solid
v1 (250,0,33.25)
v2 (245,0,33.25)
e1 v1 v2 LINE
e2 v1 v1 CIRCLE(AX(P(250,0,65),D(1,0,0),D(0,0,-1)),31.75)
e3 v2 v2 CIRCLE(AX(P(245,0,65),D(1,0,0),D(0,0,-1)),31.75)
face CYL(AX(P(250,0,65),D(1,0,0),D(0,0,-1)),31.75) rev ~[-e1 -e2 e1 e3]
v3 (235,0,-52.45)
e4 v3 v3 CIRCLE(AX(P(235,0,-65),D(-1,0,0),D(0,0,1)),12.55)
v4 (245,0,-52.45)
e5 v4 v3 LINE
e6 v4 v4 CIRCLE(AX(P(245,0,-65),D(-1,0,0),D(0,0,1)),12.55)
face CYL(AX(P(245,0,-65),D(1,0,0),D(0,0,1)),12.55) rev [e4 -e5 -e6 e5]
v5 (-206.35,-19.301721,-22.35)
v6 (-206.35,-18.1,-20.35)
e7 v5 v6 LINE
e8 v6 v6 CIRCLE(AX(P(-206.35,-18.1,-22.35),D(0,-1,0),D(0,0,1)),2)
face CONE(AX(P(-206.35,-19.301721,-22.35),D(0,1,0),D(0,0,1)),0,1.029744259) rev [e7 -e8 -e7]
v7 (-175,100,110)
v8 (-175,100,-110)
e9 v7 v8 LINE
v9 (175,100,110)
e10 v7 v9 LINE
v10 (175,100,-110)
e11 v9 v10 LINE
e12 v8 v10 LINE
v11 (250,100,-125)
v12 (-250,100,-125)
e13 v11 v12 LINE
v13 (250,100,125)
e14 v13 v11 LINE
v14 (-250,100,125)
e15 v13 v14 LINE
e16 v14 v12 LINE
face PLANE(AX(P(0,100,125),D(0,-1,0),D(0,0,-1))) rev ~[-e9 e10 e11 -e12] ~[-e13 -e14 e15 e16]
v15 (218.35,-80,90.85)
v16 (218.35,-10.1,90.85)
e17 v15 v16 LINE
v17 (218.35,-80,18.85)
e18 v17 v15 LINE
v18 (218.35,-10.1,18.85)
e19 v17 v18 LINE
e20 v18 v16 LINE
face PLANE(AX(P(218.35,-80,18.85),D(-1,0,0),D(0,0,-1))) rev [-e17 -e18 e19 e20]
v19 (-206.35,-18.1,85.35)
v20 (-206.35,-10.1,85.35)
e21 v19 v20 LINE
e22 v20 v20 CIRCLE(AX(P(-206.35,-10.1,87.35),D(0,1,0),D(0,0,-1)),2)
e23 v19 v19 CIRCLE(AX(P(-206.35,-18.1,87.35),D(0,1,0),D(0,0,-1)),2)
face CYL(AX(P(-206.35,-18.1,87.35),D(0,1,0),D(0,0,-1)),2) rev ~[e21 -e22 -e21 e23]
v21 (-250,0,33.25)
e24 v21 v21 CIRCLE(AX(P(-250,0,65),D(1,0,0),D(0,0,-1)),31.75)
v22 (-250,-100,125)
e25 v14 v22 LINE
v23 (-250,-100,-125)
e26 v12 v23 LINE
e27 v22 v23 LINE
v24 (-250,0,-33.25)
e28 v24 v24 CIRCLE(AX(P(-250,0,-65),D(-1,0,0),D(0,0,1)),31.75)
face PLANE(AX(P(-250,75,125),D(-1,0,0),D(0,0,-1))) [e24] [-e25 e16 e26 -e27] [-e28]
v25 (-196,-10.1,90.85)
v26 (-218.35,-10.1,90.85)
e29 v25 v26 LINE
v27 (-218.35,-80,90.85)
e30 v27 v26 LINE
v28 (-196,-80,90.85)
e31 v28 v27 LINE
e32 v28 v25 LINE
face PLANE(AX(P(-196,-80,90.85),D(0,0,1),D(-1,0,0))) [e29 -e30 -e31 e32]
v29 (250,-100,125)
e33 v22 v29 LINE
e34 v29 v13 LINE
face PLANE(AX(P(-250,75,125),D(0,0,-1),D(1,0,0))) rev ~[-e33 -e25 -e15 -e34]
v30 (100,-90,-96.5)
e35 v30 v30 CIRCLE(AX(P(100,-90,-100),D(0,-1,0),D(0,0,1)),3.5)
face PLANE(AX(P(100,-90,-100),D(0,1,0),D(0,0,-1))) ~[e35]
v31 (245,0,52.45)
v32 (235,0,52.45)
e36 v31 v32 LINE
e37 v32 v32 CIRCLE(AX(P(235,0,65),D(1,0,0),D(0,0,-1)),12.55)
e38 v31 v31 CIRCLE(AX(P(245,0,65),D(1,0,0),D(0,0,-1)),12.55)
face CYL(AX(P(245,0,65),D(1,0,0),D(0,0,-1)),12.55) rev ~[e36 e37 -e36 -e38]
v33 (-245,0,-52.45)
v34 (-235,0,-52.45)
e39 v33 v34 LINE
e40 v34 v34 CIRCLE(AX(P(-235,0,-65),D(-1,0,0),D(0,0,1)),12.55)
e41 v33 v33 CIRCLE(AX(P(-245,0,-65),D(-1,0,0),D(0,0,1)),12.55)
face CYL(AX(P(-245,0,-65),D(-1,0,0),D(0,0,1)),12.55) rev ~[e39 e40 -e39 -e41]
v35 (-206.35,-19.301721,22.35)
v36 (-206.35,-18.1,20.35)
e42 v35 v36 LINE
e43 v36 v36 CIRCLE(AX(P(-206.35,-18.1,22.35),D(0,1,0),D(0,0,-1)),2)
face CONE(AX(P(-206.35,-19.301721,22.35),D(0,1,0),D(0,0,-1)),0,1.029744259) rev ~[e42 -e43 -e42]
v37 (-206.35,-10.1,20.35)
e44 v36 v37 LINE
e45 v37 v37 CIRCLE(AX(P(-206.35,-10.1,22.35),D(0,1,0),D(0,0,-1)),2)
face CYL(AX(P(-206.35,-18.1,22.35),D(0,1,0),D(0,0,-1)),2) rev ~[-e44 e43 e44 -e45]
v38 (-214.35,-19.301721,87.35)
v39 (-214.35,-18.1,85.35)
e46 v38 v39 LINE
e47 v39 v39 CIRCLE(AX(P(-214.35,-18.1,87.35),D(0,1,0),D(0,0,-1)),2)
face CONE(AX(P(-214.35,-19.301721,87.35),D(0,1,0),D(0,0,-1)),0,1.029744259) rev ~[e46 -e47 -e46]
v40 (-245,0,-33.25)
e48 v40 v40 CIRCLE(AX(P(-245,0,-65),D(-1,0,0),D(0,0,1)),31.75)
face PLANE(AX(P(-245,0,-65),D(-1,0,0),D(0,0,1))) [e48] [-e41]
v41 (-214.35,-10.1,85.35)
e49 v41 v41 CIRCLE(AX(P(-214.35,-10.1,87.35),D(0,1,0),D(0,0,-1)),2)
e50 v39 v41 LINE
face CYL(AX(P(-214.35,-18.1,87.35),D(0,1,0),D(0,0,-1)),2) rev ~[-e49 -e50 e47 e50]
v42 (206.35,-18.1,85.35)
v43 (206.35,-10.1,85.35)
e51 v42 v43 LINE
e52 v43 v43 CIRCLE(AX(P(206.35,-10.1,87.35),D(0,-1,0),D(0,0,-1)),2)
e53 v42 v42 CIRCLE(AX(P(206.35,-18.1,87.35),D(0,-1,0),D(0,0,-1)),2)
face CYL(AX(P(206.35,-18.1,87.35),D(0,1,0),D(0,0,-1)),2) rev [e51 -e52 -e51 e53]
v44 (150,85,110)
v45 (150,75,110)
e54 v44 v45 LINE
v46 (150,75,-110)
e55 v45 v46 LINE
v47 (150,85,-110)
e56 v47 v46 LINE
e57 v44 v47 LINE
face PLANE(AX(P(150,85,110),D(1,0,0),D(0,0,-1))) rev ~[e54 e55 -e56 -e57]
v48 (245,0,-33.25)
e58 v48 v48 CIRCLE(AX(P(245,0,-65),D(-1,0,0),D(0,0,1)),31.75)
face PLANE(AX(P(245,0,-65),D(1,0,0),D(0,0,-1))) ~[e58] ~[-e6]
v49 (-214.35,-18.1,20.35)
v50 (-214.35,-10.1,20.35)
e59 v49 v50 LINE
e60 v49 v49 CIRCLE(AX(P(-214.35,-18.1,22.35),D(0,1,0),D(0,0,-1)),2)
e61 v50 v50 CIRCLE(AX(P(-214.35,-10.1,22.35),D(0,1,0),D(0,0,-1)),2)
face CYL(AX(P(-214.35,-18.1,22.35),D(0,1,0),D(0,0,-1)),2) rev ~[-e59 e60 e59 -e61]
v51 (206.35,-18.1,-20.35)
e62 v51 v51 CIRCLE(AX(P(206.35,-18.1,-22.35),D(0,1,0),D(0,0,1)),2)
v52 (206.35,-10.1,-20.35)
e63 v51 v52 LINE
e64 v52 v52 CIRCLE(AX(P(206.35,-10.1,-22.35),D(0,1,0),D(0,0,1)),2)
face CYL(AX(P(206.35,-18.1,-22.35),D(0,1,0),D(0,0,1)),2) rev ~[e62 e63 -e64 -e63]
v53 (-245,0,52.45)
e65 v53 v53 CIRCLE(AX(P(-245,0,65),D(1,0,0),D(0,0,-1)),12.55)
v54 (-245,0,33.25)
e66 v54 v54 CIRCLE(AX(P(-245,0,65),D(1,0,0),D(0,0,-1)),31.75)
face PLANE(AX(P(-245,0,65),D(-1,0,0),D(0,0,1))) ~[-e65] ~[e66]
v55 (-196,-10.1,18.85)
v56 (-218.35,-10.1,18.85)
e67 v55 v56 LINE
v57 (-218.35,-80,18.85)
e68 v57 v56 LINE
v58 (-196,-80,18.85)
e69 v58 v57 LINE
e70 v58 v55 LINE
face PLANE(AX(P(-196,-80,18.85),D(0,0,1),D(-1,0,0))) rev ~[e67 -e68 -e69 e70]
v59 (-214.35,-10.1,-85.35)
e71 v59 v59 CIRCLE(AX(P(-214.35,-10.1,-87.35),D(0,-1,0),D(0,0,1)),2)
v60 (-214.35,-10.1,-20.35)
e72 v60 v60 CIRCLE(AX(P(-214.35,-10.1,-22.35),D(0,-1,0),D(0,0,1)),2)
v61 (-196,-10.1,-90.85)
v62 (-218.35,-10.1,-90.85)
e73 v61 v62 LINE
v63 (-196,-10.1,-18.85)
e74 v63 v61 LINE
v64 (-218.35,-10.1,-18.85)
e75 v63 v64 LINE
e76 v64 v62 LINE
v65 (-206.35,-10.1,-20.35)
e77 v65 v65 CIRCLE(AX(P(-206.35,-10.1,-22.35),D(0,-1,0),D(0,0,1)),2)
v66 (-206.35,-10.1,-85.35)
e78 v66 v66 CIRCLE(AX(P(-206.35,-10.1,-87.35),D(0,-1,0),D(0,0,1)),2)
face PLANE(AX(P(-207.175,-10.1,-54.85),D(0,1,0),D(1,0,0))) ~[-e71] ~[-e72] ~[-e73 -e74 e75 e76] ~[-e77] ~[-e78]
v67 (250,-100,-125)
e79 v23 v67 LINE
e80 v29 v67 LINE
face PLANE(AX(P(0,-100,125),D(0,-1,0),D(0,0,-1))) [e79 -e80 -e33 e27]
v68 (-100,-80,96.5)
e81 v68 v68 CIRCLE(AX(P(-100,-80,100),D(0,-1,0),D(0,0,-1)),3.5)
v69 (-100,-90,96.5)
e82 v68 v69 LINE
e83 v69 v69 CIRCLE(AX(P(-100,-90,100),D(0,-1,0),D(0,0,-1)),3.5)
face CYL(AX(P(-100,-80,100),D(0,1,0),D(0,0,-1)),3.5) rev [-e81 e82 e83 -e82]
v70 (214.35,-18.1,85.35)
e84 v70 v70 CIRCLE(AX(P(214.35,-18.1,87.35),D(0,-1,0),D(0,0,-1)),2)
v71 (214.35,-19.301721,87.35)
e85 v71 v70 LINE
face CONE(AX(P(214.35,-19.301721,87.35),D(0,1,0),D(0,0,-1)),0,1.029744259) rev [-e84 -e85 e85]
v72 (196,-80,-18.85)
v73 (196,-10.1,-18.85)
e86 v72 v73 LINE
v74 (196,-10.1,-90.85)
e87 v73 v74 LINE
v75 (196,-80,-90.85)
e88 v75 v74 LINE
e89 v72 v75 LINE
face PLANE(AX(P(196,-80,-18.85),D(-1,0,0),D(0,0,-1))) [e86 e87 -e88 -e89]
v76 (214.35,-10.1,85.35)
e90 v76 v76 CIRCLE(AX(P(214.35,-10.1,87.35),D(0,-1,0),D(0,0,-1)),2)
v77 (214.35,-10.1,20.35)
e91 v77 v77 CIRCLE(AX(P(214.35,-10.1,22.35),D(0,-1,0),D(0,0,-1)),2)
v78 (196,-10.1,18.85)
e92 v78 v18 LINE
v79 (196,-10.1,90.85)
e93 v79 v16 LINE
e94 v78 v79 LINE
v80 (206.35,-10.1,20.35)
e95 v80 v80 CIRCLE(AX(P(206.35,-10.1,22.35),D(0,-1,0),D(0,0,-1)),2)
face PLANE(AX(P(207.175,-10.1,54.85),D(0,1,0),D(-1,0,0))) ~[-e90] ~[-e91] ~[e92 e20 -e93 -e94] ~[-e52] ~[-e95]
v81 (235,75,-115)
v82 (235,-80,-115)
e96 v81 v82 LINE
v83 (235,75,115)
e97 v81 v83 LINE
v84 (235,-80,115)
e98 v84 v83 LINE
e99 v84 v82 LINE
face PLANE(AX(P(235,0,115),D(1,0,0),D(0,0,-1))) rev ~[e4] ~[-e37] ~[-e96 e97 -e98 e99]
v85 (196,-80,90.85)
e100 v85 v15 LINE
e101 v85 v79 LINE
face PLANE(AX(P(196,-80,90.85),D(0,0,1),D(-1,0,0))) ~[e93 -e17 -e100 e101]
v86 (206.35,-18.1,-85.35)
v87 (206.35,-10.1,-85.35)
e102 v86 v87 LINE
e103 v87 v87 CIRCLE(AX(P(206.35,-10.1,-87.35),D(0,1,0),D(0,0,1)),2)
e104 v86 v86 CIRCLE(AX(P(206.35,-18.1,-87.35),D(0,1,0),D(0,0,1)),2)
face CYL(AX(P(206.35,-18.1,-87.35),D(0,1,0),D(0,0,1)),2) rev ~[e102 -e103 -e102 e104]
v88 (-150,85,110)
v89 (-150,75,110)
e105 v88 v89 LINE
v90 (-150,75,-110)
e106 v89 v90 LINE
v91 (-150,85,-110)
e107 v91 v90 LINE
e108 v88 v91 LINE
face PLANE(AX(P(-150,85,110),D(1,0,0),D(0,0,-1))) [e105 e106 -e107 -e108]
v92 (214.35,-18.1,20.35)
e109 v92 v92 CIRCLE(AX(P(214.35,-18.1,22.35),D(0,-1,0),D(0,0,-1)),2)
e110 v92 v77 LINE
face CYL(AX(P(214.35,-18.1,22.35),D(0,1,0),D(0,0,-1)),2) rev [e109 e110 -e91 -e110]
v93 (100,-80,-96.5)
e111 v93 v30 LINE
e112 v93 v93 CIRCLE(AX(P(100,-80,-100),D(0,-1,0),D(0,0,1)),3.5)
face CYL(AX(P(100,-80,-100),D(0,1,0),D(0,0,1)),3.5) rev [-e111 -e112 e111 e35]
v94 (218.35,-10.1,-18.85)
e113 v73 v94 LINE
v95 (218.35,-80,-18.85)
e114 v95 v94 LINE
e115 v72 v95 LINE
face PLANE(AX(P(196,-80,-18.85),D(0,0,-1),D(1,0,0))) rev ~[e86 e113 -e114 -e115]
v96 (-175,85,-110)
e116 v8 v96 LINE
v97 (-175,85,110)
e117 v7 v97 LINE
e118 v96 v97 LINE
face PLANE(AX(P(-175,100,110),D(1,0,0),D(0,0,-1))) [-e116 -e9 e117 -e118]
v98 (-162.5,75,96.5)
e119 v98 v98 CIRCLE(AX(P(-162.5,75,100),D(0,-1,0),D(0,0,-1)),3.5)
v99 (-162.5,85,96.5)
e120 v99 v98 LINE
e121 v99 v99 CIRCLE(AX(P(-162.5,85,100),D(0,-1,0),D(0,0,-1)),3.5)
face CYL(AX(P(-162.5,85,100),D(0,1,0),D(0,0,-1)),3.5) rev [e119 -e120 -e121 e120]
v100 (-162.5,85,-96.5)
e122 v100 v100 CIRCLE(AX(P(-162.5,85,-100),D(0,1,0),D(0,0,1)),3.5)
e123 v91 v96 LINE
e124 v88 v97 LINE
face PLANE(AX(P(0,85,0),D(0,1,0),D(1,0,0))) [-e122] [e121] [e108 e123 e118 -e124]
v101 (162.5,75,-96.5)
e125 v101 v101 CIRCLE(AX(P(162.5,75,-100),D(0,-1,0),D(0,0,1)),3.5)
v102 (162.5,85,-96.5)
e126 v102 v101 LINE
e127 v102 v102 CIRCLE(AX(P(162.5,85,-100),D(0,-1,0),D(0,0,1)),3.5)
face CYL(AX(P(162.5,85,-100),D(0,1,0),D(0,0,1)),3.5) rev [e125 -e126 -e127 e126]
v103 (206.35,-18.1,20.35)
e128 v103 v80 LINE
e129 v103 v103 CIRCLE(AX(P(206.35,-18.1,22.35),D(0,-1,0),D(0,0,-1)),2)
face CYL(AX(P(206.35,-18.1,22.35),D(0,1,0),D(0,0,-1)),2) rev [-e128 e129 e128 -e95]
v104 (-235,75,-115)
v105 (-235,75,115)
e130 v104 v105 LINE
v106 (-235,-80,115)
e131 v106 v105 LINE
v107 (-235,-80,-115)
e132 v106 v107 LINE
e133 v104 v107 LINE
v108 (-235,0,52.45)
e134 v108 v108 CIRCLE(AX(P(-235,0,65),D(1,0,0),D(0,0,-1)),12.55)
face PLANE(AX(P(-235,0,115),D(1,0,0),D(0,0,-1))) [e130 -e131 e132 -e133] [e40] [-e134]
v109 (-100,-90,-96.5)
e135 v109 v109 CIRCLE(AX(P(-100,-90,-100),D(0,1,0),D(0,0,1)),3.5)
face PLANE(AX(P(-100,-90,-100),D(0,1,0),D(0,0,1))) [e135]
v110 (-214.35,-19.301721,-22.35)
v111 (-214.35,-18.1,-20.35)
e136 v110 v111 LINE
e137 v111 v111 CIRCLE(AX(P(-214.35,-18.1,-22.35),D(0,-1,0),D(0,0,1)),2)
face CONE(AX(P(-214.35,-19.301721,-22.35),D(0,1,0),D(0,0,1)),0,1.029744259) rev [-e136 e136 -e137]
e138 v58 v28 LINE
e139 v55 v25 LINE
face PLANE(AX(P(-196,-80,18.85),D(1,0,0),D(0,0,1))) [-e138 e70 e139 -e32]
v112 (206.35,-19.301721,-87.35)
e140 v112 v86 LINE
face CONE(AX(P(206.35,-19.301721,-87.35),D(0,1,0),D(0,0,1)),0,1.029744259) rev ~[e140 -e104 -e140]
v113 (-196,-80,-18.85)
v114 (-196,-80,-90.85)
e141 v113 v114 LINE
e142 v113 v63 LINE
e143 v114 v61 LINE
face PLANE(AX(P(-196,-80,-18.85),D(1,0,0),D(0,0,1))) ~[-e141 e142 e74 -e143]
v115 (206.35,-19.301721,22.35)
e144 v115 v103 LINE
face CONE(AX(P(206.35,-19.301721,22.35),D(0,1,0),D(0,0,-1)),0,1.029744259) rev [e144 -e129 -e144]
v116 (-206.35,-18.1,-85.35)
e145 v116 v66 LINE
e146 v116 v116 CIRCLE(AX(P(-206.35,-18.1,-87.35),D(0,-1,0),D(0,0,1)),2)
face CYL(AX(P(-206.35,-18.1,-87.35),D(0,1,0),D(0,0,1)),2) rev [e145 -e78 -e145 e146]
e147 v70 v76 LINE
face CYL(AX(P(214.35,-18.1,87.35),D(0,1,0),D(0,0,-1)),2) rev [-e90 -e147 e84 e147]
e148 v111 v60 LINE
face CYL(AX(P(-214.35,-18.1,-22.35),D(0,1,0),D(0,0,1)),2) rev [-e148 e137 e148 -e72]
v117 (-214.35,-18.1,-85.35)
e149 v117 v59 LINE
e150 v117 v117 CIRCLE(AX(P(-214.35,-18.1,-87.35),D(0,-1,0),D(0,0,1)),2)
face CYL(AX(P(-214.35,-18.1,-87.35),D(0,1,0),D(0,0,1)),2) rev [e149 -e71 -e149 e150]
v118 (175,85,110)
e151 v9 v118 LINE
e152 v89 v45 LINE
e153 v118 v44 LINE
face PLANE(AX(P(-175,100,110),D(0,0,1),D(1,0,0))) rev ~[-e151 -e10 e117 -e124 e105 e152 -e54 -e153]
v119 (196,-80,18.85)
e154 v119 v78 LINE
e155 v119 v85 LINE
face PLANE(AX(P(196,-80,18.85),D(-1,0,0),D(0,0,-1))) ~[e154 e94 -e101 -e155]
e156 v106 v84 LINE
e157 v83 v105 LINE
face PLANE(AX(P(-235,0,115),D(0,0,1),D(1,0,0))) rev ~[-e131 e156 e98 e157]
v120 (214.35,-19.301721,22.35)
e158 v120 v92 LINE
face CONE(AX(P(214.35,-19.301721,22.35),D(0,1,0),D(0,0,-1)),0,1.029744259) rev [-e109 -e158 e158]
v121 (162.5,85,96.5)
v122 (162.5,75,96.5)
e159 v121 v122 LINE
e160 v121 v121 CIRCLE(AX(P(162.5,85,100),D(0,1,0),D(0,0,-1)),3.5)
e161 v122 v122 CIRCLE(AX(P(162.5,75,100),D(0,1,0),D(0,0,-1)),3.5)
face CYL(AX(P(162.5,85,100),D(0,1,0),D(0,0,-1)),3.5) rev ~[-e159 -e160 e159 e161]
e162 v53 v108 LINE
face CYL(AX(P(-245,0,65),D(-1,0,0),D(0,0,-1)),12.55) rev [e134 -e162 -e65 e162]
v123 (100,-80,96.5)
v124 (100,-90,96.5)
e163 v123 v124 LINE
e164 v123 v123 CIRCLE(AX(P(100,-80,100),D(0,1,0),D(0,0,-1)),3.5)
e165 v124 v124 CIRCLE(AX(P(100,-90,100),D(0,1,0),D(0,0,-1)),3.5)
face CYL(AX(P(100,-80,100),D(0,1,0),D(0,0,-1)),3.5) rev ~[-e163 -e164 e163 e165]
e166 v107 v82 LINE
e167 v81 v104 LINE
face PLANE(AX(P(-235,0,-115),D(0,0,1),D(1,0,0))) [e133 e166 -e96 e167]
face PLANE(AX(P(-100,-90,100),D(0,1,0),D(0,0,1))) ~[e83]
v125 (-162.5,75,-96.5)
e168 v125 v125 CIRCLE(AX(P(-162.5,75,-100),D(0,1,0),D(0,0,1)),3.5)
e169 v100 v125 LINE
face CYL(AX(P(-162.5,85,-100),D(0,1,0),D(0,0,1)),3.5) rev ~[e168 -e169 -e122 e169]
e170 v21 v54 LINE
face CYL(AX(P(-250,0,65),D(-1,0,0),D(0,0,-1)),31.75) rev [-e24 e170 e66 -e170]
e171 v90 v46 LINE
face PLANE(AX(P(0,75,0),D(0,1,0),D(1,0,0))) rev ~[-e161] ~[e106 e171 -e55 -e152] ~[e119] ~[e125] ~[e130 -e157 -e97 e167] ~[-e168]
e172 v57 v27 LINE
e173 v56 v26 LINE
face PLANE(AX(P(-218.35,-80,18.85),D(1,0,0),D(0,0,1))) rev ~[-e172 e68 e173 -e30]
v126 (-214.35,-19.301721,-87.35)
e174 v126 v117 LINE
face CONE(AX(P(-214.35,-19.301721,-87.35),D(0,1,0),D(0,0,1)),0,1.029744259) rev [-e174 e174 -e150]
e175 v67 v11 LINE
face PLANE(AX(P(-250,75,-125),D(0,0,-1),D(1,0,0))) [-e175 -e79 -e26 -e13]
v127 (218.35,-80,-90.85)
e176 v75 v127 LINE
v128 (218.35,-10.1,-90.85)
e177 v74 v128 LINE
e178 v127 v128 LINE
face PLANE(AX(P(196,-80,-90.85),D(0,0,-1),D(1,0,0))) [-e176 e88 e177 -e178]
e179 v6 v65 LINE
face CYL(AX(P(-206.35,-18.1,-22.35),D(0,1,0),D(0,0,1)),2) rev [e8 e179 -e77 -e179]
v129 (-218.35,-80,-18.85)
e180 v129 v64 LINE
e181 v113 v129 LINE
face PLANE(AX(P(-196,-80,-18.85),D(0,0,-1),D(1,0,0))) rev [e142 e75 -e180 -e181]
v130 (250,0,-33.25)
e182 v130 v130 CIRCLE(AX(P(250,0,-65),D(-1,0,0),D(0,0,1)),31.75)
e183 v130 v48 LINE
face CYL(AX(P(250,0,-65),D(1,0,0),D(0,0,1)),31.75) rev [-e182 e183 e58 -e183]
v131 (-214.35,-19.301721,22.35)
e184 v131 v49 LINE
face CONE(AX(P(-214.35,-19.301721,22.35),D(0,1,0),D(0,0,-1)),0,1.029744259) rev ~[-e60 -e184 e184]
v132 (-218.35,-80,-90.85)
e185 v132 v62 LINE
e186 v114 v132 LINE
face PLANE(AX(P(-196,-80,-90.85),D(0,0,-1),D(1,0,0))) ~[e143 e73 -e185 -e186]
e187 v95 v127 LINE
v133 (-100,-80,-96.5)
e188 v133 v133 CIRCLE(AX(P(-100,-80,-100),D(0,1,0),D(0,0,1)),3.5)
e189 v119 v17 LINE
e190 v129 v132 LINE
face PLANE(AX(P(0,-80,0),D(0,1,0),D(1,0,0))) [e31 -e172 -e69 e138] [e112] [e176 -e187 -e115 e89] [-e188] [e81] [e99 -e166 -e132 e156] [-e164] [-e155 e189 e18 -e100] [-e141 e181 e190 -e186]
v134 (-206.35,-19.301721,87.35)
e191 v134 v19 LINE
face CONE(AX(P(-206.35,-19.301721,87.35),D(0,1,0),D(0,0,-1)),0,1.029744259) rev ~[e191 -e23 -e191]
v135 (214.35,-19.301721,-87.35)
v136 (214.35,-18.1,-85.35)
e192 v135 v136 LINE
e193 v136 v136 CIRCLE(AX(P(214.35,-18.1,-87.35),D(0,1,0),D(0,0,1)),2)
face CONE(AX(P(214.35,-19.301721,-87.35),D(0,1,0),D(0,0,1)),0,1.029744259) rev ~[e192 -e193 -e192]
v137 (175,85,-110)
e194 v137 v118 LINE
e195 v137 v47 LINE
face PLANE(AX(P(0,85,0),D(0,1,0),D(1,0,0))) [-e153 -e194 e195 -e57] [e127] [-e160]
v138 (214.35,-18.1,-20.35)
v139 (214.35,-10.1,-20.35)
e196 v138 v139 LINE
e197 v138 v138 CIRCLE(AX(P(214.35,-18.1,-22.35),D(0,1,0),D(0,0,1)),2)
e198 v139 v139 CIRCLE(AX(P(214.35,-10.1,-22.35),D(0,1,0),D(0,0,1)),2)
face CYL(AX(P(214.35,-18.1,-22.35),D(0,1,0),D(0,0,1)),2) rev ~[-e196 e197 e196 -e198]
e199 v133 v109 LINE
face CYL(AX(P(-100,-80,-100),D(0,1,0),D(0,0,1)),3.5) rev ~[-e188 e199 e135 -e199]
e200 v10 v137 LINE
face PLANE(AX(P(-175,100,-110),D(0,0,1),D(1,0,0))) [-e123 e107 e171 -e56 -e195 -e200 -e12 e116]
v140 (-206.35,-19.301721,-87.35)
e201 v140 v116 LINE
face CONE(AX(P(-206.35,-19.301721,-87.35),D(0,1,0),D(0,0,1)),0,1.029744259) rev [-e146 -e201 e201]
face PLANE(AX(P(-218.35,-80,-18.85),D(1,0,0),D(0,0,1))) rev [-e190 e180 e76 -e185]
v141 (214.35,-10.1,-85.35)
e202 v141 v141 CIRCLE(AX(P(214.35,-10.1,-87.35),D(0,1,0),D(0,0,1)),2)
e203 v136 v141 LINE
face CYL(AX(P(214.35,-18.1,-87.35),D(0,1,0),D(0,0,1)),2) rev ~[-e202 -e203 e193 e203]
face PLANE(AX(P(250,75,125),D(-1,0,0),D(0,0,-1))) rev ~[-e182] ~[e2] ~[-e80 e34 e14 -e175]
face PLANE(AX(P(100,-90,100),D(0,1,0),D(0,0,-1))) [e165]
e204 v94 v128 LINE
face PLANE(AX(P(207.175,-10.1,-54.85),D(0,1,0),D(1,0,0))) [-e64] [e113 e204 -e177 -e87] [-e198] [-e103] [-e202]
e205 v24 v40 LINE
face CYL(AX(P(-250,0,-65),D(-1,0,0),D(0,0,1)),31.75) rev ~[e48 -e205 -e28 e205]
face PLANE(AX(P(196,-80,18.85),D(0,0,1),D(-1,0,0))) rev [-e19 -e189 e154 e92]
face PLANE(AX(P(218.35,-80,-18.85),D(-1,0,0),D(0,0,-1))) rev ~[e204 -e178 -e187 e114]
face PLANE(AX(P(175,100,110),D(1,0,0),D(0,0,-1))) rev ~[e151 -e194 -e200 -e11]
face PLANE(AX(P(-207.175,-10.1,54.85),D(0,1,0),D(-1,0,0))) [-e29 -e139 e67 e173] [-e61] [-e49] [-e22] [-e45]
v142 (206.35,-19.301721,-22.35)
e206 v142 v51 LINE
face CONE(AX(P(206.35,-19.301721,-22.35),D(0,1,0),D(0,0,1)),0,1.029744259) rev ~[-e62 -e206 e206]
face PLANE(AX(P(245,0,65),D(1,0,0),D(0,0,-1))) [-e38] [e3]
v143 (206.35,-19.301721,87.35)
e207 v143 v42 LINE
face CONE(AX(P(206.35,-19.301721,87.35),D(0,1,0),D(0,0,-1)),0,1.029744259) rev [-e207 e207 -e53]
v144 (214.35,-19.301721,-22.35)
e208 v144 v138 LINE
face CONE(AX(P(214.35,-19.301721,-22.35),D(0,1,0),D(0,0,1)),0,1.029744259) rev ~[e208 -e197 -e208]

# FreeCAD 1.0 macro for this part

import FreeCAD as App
import Part
import Sketcher
Q = App.Units.Quantity


def add_polygon(sketch, points):
    """Adds a closed chain of lines whose ends are joined by coincident constraints."""
    first, n = sketch.GeometryCount, len(points)
    for a, b in zip(points, points[1:] + points[:1]):
        sketch.addGeometry(Part.LineSegment(App.Vector(*a, 0), App.Vector(*b, 0)), False)
    for i in range(n):
        sketch.addConstraint(Sketcher.Constraint("Coincident", first + i, 2, first + (i + 1) % n, 1))

doc = App.newDocument("Part")
body = doc.addObject("PartDesign::Body", "Body")

# Sketch on YZ plane
sketch1 = body.newObject("Sketcher::SketchObject", "Sketch")
sketch1.AttachmentSupport = (doc.getObject("YZ_Plane"), [""])
sketch1.MapMode = "FlatFace"
add_polygon(sketch1, [(100, 125), (-100, 125), (-100, -125), (100, -125)])  # lines 0-3
sketch1.addConstraint(Sketcher.Constraint("Horizontal", 0))
sketch1.addConstraint(Sketcher.Constraint("Vertical", 1))
sketch1.addConstraint(Sketcher.Constraint("Horizontal", 2))
sketch1.addConstraint(Sketcher.Constraint("Vertical", 3))
sketch1.addConstraint(Sketcher.Constraint("Symmetric", 0, 2, 2, 2, -1, 1))
sketch1.addConstraint(Sketcher.Constraint("DistanceX", 0, 2, 0, 1, Q("200 mm")))
sketch1.addConstraint(Sketcher.Constraint("DistanceY", 1, 2, 1, 1, Q("250 mm")))
pad1 = body.newObject("PartDesign::Pad", "Pad")
pad1.Profile = sketch1
pad1.Length = 500
pad1.Midplane = True

# Sketch on XZ plane
sketch2 = body.newObject("Sketcher::SketchObject", "Sketch001")
sketch2.AttachmentSupport = (doc.getObject("XZ_Plane"), [""])
sketch2.MapMode = "FlatFace"
add_polygon(sketch2, [(-235, -115), (-235, 115), (235, 115), (235, -115)])  # lines 0-3
sketch2.addConstraint(Sketcher.Constraint("Vertical", 0))
sketch2.addConstraint(Sketcher.Constraint("Horizontal", 1))
sketch2.addConstraint(Sketcher.Constraint("Vertical", 2))
sketch2.addConstraint(Sketcher.Constraint("Horizontal", 3))
sketch2.addConstraint(Sketcher.Constraint("Symmetric", 0, 2, 2, 2, -1, 1))
sketch2.addConstraint(Sketcher.Constraint("DistanceX", 1, 1, 1, 2, Q("470 mm")))
sketch2.addConstraint(Sketcher.Constraint("DistanceY", 0, 1, 0, 2, Q("230 mm")))
pocket1 = body.newObject("PartDesign::Pocket", "Pocket")
pocket1.Profile = sketch2
pocket1.Length = 160
pocket1.Midplane = True

# Sketch on YZ plane
sketch3 = body.newObject("Sketcher::SketchObject", "Sketch002")
sketch3.AttachmentSupport = (doc.getObject("YZ_Plane"), [""])
sketch3.MapMode = "FlatFace"
sketch3.AttachmentOffset = App.Placement(App.Vector(0, 0, 250), App.Rotation())
sketch3.addGeometry(Part.Circle(App.Vector(0, 65, 0), App.Vector(0, 0, 1), 32), False)
sketch3.addConstraint(Sketcher.Constraint("PointOnObject", 0, 3, -2))
sketch3.addConstraint(Sketcher.Constraint("Diameter", 0, Q("63.5 mm")))
sketch3.addConstraint(Sketcher.Constraint("DistanceY", -1, 1, 0, 3, Q("65 mm")))
pocket2 = body.newObject("PartDesign::Pocket", "Pocket001")
pocket2.Profile = sketch3
pocket2.Length = 5
doc.recompute()

mirrored = body.newObject("PartDesign::Mirrored", "Mirrored")
mirrored.Originals = [pocket2]
mirrored.MirrorPlane = (doc.getObject("XY_Plane"), [""])
body.Tip = mirrored
doc.recompute()

mirrored2 = body.newObject("PartDesign::Mirrored", "Mirrored001")
mirrored2.Originals = [pocket2]
mirrored2.MirrorPlane = (doc.getObject("YZ_Plane"), [""])
body.Tip = mirrored2

# Sketch on YZ plane
sketch4 = body.newObject("Sketcher::SketchObject", "Sketch003")
sketch4.AttachmentSupport = (doc.getObject("YZ_Plane"), [""])
sketch4.MapMode = "FlatFace"
sketch4.AttachmentOffset = App.Placement(App.Vector(0, 0, -250), App.Rotation())
sketch4.addGeometry(Part.Circle(App.Vector(0, -65, 0), App.Vector(0, 0, 1), 32), False)
sketch4.addConstraint(Sketcher.Constraint("PointOnObject", 0, 3, -2))
sketch4.addConstraint(Sketcher.Constraint("Diameter", 0, Q("63.5 mm")))
sketch4.addConstraint(Sketcher.Constraint("DistanceY", 0, 3, -1, 1, Q("65 mm")))
pocket3 = body.newObject("PartDesign::Pocket", "Pocket002")
pocket3.Profile = sketch4
pocket3.Length = 5
pocket3.Reversed = True

# Sketch on XZ plane
sketch5 = body.newObject("Sketcher::SketchObject", "Sketch004")
sketch5.AttachmentSupport = (doc.getObject("XZ_Plane"), [""])
sketch5.MapMode = "FlatFace"
sketch5.AttachmentOffset = App.Placement(App.Vector(0, 0, -100), App.Rotation())
add_polygon(sketch5, [(-175, -110), (-175, 110), (175, 110), (175, -110)])  # lines 0-3
sketch5.addConstraint(Sketcher.Constraint("Vertical", 0))
sketch5.addConstraint(Sketcher.Constraint("Horizontal", 1))
sketch5.addConstraint(Sketcher.Constraint("Vertical", 2))
sketch5.addConstraint(Sketcher.Constraint("Horizontal", 3))
sketch5.addConstraint(Sketcher.Constraint("Symmetric", 0, 2, 2, 2, -1, 1))
sketch5.addConstraint(Sketcher.Constraint("DistanceX", 1, 1, 1, 2, Q("350 mm")))
sketch5.addConstraint(Sketcher.Constraint("DistanceY", 0, 1, 0, 2, Q("220 mm")))
pocket4 = body.newObject("PartDesign::Pocket", "Pocket003")
pocket4.Profile = sketch5
pocket4.Length = 20
pocket4.Reversed = True

# Sketch on XZ plane
sketch6 = body.newObject("Sketcher::SketchObject", "Sketch005")
sketch6.AttachmentSupport = (doc.getObject("XZ_Plane"), [""])
sketch6.MapMode = "FlatFace"
sketch6.AttachmentOffset = App.Placement(App.Vector(0, 0, -75), App.Rotation())
add_polygon(sketch6, [(-250, -125), (-250, 125), (250, 125), (250, -125)])  # lines 0-3
sketch6.addConstraint(Sketcher.Constraint("Vertical", 0))
sketch6.addConstraint(Sketcher.Constraint("Horizontal", 1))
sketch6.addConstraint(Sketcher.Constraint("Vertical", 2))
sketch6.addConstraint(Sketcher.Constraint("Horizontal", 3))
sketch6.addConstraint(Sketcher.Constraint("Symmetric", 0, 2, 2, 2, -1, 1))
sketch6.addConstraint(Sketcher.Constraint("DistanceX", 1, 1, 1, 2, Q("500 mm")))
sketch6.addConstraint(Sketcher.Constraint("DistanceY", 0, 1, 0, 2, Q("250 mm")))
pad2 = body.newObject("PartDesign::Pad", "Pad001")
pad2.Profile = sketch6
pad2.Length = 10
pad2.Reversed = True

# Sketch on XZ plane
sketch7 = body.newObject("Sketcher::SketchObject", "Sketch006")
sketch7.AttachmentSupport = (doc.getObject("XZ_Plane"), [""])
sketch7.MapMode = "FlatFace"
sketch7.AttachmentOffset = App.Placement(App.Vector(0, 0, -85), App.Rotation())
add_polygon(sketch7, [(-150, -110), (-150, 110), (150, 110), (150, -110)])  # lines 0-3
sketch7.addConstraint(Sketcher.Constraint("Vertical", 0))
sketch7.addConstraint(Sketcher.Constraint("Horizontal", 1))
sketch7.addConstraint(Sketcher.Constraint("Vertical", 2))
sketch7.addConstraint(Sketcher.Constraint("Horizontal", 3))
sketch7.addConstraint(Sketcher.Constraint("Symmetric", 0, 2, 2, 2, -1, 1))
sketch7.addConstraint(Sketcher.Constraint("DistanceX", 1, 1, 1, 2, Q("300 mm")))
sketch7.addConstraint(Sketcher.Constraint("DistanceY", 0, 1, 0, 2, Q("220 mm")))
pocket5 = body.newObject("PartDesign::Pocket", "Pocket004")
pocket5.Profile = sketch7
pocket5.Length = 10
pocket5.Reversed = True

# Sketch on XZ plane
sketch8 = body.newObject("Sketcher::SketchObject", "Sketch007")
sketch8.AttachmentSupport = (doc.getObject("XZ_Plane"), [""])
sketch8.MapMode = "FlatFace"
sketch8.AttachmentOffset = App.Placement(App.Vector(0, 0, -85), App.Rotation())
sketch8.addGeometry(Part.Circle(App.Vector(-162.5, -100, 0), App.Vector(0, 0, 1), 3.5), False)
sketch8.addConstraint(Sketcher.Constraint("Diameter", 0, Q("7 mm")))
sketch8.addConstraint(Sketcher.Constraint("DistanceY", 0, 3, -1, 1, Q("100 mm")))
sketch8.addConstraint(Sketcher.Constraint("DistanceX", 0, 3, -1, 1, Q("162.5 mm")))
pocket6 = body.newObject("PartDesign::Pocket", "Pocket005")
pocket6.Profile = sketch8
pocket6.Length = 10
pocket6.Reversed = True
doc.recompute()

mirrored3 = body.newObject("PartDesign::Mirrored", "Mirrored002")
mirrored3.Originals = [pocket6]
mirrored3.MirrorPlane = (doc.getObject("XY_Plane"), [""])
body.Tip = mirrored3
doc.recompute()

mirrored4 = body.newObject("PartDesign::Mirrored", "Mirrored003")
mirrored4.Originals = [pocket6]
mirrored4.MirrorPlane = (doc.getObject("YZ_Plane"), [""])
body.Tip = mirrored4

# Sketch on XZ plane
sketch9 = body.newObject("Sketcher::SketchObject", "Sketch008")
sketch9.AttachmentSupport = (doc.getObject("XZ_Plane"), [""])
sketch9.MapMode = "FlatFace"
sketch9.AttachmentOffset = App.Placement(App.Vector(0, 0, -85), App.Rotation())
sketch9.addGeometry(Part.Circle(App.Vector(162.5, 100, 0), App.Vector(0, 0, 1), 3.5), False)
sketch9.addConstraint(Sketcher.Constraint("Diameter", 0, Q("7 mm")))
sketch9.addConstraint(Sketcher.Constraint("DistanceY", -1, 1, 0, 3, Q("100 mm")))
sketch9.addConstraint(Sketcher.Constraint("DistanceX", -1, 1, 0, 3, Q("162.5 mm")))
pocket7 = body.newObject("PartDesign::Pocket", "Pocket006")
pocket7.Profile = sketch9
pocket7.Length = 10
pocket7.Reversed = True

# Sketch on XZ plane
sketch10 = body.newObject("Sketcher::SketchObject", "Sketch009")
sketch10.AttachmentSupport = (doc.getObject("XZ_Plane"), [""])
sketch10.MapMode = "FlatFace"
sketch10.AttachmentOffset = App.Placement(App.Vector(0, 0, 80), App.Rotation())
sketch10.addGeometry(Part.Circle(App.Vector(-100, -100, 0), App.Vector(0, 0, 1), 3.5), False)
sketch10.addConstraint(Sketcher.Constraint("Diameter", 0, Q("7 mm")))
sketch10.addConstraint(Sketcher.Constraint("DistanceX", 0, 3, -1, 1, Q("100 mm")))
sketch10.addConstraint(Sketcher.Constraint("DistanceY", 0, 3, -1, 1, Q("100 mm")))
pocket8 = body.newObject("PartDesign::Pocket", "Pocket007")
pocket8.Profile = sketch10
pocket8.Length = 10
pocket8.Reversed = True
doc.recompute()

mirrored5 = body.newObject("PartDesign::Mirrored", "Mirrored004")
mirrored5.Originals = [pocket8]
mirrored5.MirrorPlane = (doc.getObject("XY_Plane"), [""])
body.Tip = mirrored5
doc.recompute()

mirrored6 = body.newObject("PartDesign::Mirrored", "Mirrored005")
mirrored6.Originals = [pocket8]
mirrored6.MirrorPlane = (doc.getObject("YZ_Plane"), [""])
body.Tip = mirrored6

# Sketch on XZ plane
sketch11 = body.newObject("Sketcher::SketchObject", "Sketch010")
sketch11.AttachmentSupport = (doc.getObject("XZ_Plane"), [""])
sketch11.MapMode = "FlatFace"
sketch11.AttachmentOffset = App.Placement(App.Vector(0, 0, 80), App.Rotation())
sketch11.addGeometry(Part.Circle(App.Vector(100, 100, 0), App.Vector(0, 0, 1), 3.5), False)
sketch11.addConstraint(Sketcher.Constraint("Diameter", 0, Q("7 mm")))
sketch11.addConstraint(Sketcher.Constraint("DistanceX", -1, 1, 0, 3, Q("100 mm")))
sketch11.addConstraint(Sketcher.Constraint("DistanceY", -1, 1, 0, 3, Q("100 mm")))
pocket9 = body.newObject("PartDesign::Pocket", "Pocket008")
pocket9.Profile = sketch11
pocket9.Length = 10
pocket9.Reversed = True

# Sketch on YZ plane
sketch12 = body.newObject("Sketcher::SketchObject", "Sketch011")
sketch12.AttachmentSupport = (doc.getObject("YZ_Plane"), [""])
sketch12.MapMode = "FlatFace"
sketch12.AttachmentOffset = App.Placement(App.Vector(0, 0, 245), App.Rotation())
sketch12.addGeometry(Part.Circle(App.Vector(0, 65, 0), App.Vector(0, 0, 1), 13), False)
sketch12.addConstraint(Sketcher.Constraint("PointOnObject", 0, 3, -2))
sketch12.addConstraint(Sketcher.Constraint("Diameter", 0, Q("25.1 mm")))
sketch12.addConstraint(Sketcher.Constraint("DistanceY", -1, 1, 0, 3, Q("65 mm")))
pocket10 = body.newObject("PartDesign::Pocket", "Pocket009")
pocket10.Profile = sketch12
pocket10.Length = 10
doc.recompute()

mirrored7 = body.newObject("PartDesign::Mirrored", "Mirrored006")
mirrored7.Originals = [pocket10]
mirrored7.MirrorPlane = (doc.getObject("YZ_Plane"), [""])
body.Tip = mirrored7
doc.recompute()

mirrored8 = body.newObject("PartDesign::Mirrored", "Mirrored007")
mirrored8.Originals = [pocket10]
mirrored8.MirrorPlane = (doc.getObject("XY_Plane"), [""])
body.Tip = mirrored8

# Sketch on YZ plane
sketch13 = body.newObject("Sketcher::SketchObject", "Sketch012")
sketch13.AttachmentSupport = (doc.getObject("YZ_Plane"), [""])
sketch13.MapMode = "FlatFace"
sketch13.AttachmentOffset = App.Placement(App.Vector(0, 0, -245), App.Rotation())
sketch13.addGeometry(Part.Circle(App.Vector(0, -65, 0), App.Vector(0, 0, 1), 13), False)
sketch13.addConstraint(Sketcher.Constraint("PointOnObject", 0, 3, -2))
sketch13.addConstraint(Sketcher.Constraint("Diameter", 0, Q("25.1 mm")))
sketch13.addConstraint(Sketcher.Constraint("DistanceY", 0, 3, -1, 1, Q("65 mm")))
pocket11 = body.newObject("PartDesign::Pocket", "Pocket010")
pocket11.Profile = sketch13
pocket11.Length = 10
pocket11.Reversed = True

# Sketch on XZ plane
sketch14 = body.newObject("Sketcher::SketchObject", "Sketch013")
sketch14.AttachmentSupport = (doc.getObject("XZ_Plane"), [""])
sketch14.MapMode = "FlatFace"
sketch14.AttachmentOffset = App.Placement(App.Vector(0, 0, 80), App.Rotation())
add_polygon(sketch14, [(196, -91), (196, -19), (218, -19), (218, -91)])  # lines 0-3
sketch14.addConstraint(Sketcher.Constraint("Vertical", 0))
sketch14.addConstraint(Sketcher.Constraint("Horizontal", 1))
sketch14.addConstraint(Sketcher.Constraint("Vertical", 2))
sketch14.addConstraint(Sketcher.Constraint("Horizontal", 3))
sketch14.addConstraint(Sketcher.Constraint("DistanceY", 0, 1, 0, 2, Q("72 mm")))
sketch14.addConstraint(Sketcher.Constraint("DistanceX", -1, 1, 0, 2, Q("196 mm")))
sketch14.addConstraint(Sketcher.Constraint("DistanceX", 1, 1, 1, 2, Q("22.35 mm")))
sketch14.addConstraint(Sketcher.Constraint("DistanceY", 0, 2, -1, 1, Q("18.85 mm")))
pad3 = body.newObject("PartDesign::Pad", "Pad002")
pad3.Profile = sketch14
pad3.Length = 69.9
pad3.Reversed = True
doc.recompute()

mirrored9 = body.newObject("PartDesign::Mirrored", "Mirrored008")
mirrored9.Originals = [pad3]
mirrored9.MirrorPlane = (doc.getObject("YZ_Plane"), [""])
body.Tip = mirrored9
doc.recompute()

mirrored10 = body.newObject("PartDesign::Mirrored", "Mirrored009")
mirrored10.Originals = [pad3]
mirrored10.MirrorPlane = (doc.getObject("XY_Plane"), [""])
body.Tip = mirrored10

# Sketch on XZ plane
sketch15 = body.newObject("Sketcher::SketchObject", "Sketch014")
sketch15.AttachmentSupport = (doc.getObject("XZ_Plane"), [""])
sketch15.MapMode = "FlatFace"
sketch15.AttachmentOffset = App.Placement(App.Vector(0, 0, 80), App.Rotation())
add_polygon(sketch15, [(-196, 91), (-196, 19), (-218, 19), (-218, 91)])  # lines 0-3
sketch15.addConstraint(Sketcher.Constraint("Vertical", 0))
sketch15.addConstraint(Sketcher.Constraint("Horizontal", 1))
sketch15.addConstraint(Sketcher.Constraint("Vertical", 2))
sketch15.addConstraint(Sketcher.Constraint("Horizontal", 3))
sketch15.addConstraint(Sketcher.Constraint("DistanceY", 0, 2, 0, 1, Q("72 mm")))
sketch15.addConstraint(Sketcher.Constraint("DistanceX", 0, 2, -1, 1, Q("196 mm")))
sketch15.addConstraint(Sketcher.Constraint("DistanceX", 1, 2, 1, 1, Q("22.35 mm")))
sketch15.addConstraint(Sketcher.Constraint("DistanceY", -1, 1, 0, 2, Q("18.85 mm")))
pad4 = body.newObject("PartDesign::Pad", "Pad003")
pad4.Profile = sketch15
pad4.Length = 69.9
pad4.Reversed = True

# Sketch on YZ plane
sketch16 = body.newObject("Sketcher::SketchObject", "Sketch015")
sketch16.AttachmentSupport = (doc.getObject("YZ_Plane"), [""])
sketch16.MapMode = "FlatFace"
sketch16.AttachmentOffset = App.Placement(App.Vector(0, 0, -214.35), App.Rotation())
add_polygon(sketch16, [(-19.3, -87.3), (-10.1, -87.3), (-10.1, -85.3), (-18.1, -85.3)])  # lines 0-3
sketch16.addGeometry(Part.LineSegment(App.Vector(-10.1, -87.3, 0), App.Vector(-19.3, -87.3, 0)), True)  # axis
sketch16.addConstraint(Sketcher.Constraint("Horizontal", 0))
sketch16.addConstraint(Sketcher.Constraint("Vertical", 1))
sketch16.addConstraint(Sketcher.Constraint("Horizontal", 2))
sketch16.addConstraint(Sketcher.Constraint("Horizontal", 4))
sketch16.addConstraint(Sketcher.Constraint("Coincident", 4, 1, 0, 2))
sketch16.addConstraint(Sketcher.Constraint("Equal", 0, 4))
sketch16.addConstraint(Sketcher.Constraint("DistanceX", 2, 2, 2, 1, Q("8 mm")))
sketch16.addConstraint(Sketcher.Constraint("DistanceY", 1, 1, 1, 2, Q("2 mm")))
sketch16.addConstraint(Sketcher.Constraint("Angle", 3, Q("-121 deg")))
sketch16.addConstraint(Sketcher.Constraint("DistanceX", 0, 2, -1, 1, Q("10.1 mm")))
sketch16.addConstraint(Sketcher.Constraint("DistanceY", 0, 2, -1, 1, Q("87.35 mm")))
groove = body.newObject("PartDesign::Groove", "Groove")
groove.Profile = sketch16
groove.ReferenceAxis = (sketch16, ["Axis0"])
groove.Angle = 360
doc.recompute()

linearpattern = body.newObject("PartDesign::LinearPattern", "LinearPattern")
linearpattern.Originals = [groove]
linearpattern.Direction = (doc.getObject("X_Axis"), [""])
linearpattern.Mode = "offset"
linearpattern.Offset = 8
linearpattern.Occurrences = 2
body.Tip = linearpattern
doc.recompute()

datumline = body.newObject("PartDesign::Line", "DatumLine")
datumline.Placement = App.Placement(App.Vector(0, 0, 0), App.Rotation(App.Vector(0, 0, 1), App.Vector(0.122155201, 0, 0.992511011)))
linearpattern2 = body.newObject("PartDesign::LinearPattern", "LinearPattern001")
linearpattern2.Originals = [groove]
linearpattern2.Direction = (datumline, [""])
linearpattern2.Mode = "offset"
linearpattern2.Offset = 65.490457
linearpattern2.Occurrences = 2
body.Tip = linearpattern2
doc.recompute()

linearpattern3 = body.newObject("PartDesign::LinearPattern", "LinearPattern002")
linearpattern3.Originals = [groove]
linearpattern3.Direction = (doc.getObject("Z_Axis"), [""])
linearpattern3.Mode = "offset"
linearpattern3.Offset = 65
linearpattern3.Occurrences = 2
body.Tip = linearpattern3
doc.recompute()

mirrored11 = body.newObject("PartDesign::Mirrored", "Mirrored010")
mirrored11.Originals = [groove]
mirrored11.MirrorPlane = (doc.getObject("XY_Plane"), [""])
body.Tip = mirrored11

# Sketch on YZ plane
sketch17 = body.newObject("Sketcher::SketchObject", "Sketch016")
sketch17.AttachmentSupport = (doc.getObject("YZ_Plane"), [""])
sketch17.MapMode = "FlatFace"
sketch17.AttachmentOffset = App.Placement(App.Vector(0, 0, -206.35), App.Rotation())
add_polygon(sketch17, [(-10.1, 87.3), (-19.3, 87.3), (-18.1, 85.3), (-10.1, 85.3)])  # lines 0-3
sketch17.addGeometry(Part.LineSegment(App.Vector(-19.3, 87.3, 0), App.Vector(-10.1, 87.3, 0)), True)  # axis
sketch17.addConstraint(Sketcher.Constraint("Horizontal", 0))
sketch17.addConstraint(Sketcher.Constraint("Horizontal", 2))
sketch17.addConstraint(Sketcher.Constraint("Vertical", 3))
sketch17.addConstraint(Sketcher.Constraint("Horizontal", 4))
sketch17.addConstraint(Sketcher.Constraint("Coincident", 4, 1, 0, 2))
sketch17.addConstraint(Sketcher.Constraint("Vertical", 2, 2, 4, 2))
sketch17.addConstraint(Sketcher.Constraint("DistanceX", 2, 1, 2, 2, Q("8 mm")))
sketch17.addConstraint(Sketcher.Constraint("DistanceY", 3, 1, 3, 2, Q("2 mm")))
sketch17.addConstraint(Sketcher.Constraint("Angle", 1, Q("-59 deg")))
sketch17.addConstraint(Sketcher.Constraint("DistanceX", 1, 2, -1, 1, Q("18.1 mm")))
sketch17.addConstraint(Sketcher.Constraint("DistanceY", -1, 1, 0, 2, Q("87.35 mm")))
groove2 = body.newObject("PartDesign::Groove", "Groove001")
groove2.Profile = sketch17
groove2.ReferenceAxis = (sketch17, ["Axis0"])
groove2.Angle = 360

# Sketch on YZ plane
sketch18 = body.newObject("Sketcher::SketchObject", "Sketch017")
sketch18.AttachmentSupport = (doc.getObject("YZ_Plane"), [""])
sketch18.MapMode = "FlatFace"
sketch18.AttachmentOffset = App.Placement(App.Vector(0, 0, -206.35), App.Rotation())
add_polygon(sketch18, [(-10.1, 22.4), (-19.3, 22.4), (-18.1, 20.4), (-10.1, 20.4)])  # lines 0-3
sketch18.addGeometry(Part.LineSegment(App.Vector(-19.3, 22.4, 0), App.Vector(-10.1, 22.4, 0)), True)  # axis
sketch18.addConstraint(Sketcher.Constraint("Horizontal", 0))
sketch18.addConstraint(Sketcher.Constraint("Horizontal", 2))
sketch18.addConstraint(Sketcher.Constraint("Vertical", 3))
sketch18.addConstraint(Sketcher.Constraint("Horizontal", 4))
sketch18.addConstraint(Sketcher.Constraint("Coincident", 4, 1, 0, 2))
sketch18.addConstraint(Sketcher.Constraint("Vertical", 2, 2, 4, 2))
sketch18.addConstraint(Sketcher.Constraint("DistanceX", 2, 1, 2, 2, Q("8 mm")))
sketch18.addConstraint(Sketcher.Constraint("DistanceY", 3, 1, 3, 2, Q("2 mm")))
sketch18.addConstraint(Sketcher.Constraint("Angle", 1, Q("-59 deg")))
sketch18.addConstraint(Sketcher.Constraint("DistanceX", 1, 2, -1, 1, Q("18.1 mm")))
sketch18.addConstraint(Sketcher.Constraint("DistanceY", -1, 1, 0, 2, Q("22.35 mm")))
groove3 = body.newObject("PartDesign::Groove", "Groove002")
groove3.Profile = sketch18
groove3.ReferenceAxis = (sketch18, ["Axis0"])
groove3.Angle = 360

# Sketch on YZ plane
sketch19 = body.newObject("Sketcher::SketchObject", "Sketch018")
sketch19.AttachmentSupport = (doc.getObject("YZ_Plane"), [""])
sketch19.MapMode = "FlatFace"
sketch19.AttachmentOffset = App.Placement(App.Vector(0, 0, -214.35), App.Rotation())
add_polygon(sketch19, [(-10.1, 22.4), (-19.3, 22.4), (-18.1, 20.4), (-10.1, 20.4)])  # lines 0-3
sketch19.addGeometry(Part.LineSegment(App.Vector(-19.3, 22.4, 0), App.Vector(-10.1, 22.4, 0)), True)  # axis
sketch19.addConstraint(Sketcher.Constraint("Horizontal", 0))
sketch19.addConstraint(Sketcher.Constraint("Horizontal", 2))
sketch19.addConstraint(Sketcher.Constraint("Vertical", 3))
sketch19.addConstraint(Sketcher.Constraint("Horizontal", 4))
sketch19.addConstraint(Sketcher.Constraint("Coincident", 4, 1, 0, 2))
sketch19.addConstraint(Sketcher.Constraint("Vertical", 2, 2, 4, 2))
sketch19.addConstraint(Sketcher.Constraint("DistanceX", 2, 1, 2, 2, Q("8 mm")))
sketch19.addConstraint(Sketcher.Constraint("DistanceY", 3, 1, 3, 2, Q("2 mm")))
sketch19.addConstraint(Sketcher.Constraint("Angle", 1, Q("-59 deg")))
sketch19.addConstraint(Sketcher.Constraint("DistanceX", 1, 2, -1, 1, Q("18.1 mm")))
sketch19.addConstraint(Sketcher.Constraint("DistanceY", -1, 1, 0, 2, Q("22.35 mm")))
groove4 = body.newObject("PartDesign::Groove", "Groove003")
groove4.Profile = sketch19
groove4.ReferenceAxis = (sketch19, ["Axis0"])
groove4.Angle = 360
doc.recompute()

mirrored12 = body.newObject("PartDesign::Mirrored", "Mirrored011")
mirrored12.Originals = [groove]
mirrored12.MirrorPlane = (doc.getObject("YZ_Plane"), [""])
body.Tip = mirrored12

# Sketch on YZ plane
sketch20 = body.newObject("Sketcher::SketchObject", "Sketch019")
sketch20.AttachmentSupport = (doc.getObject("YZ_Plane"), [""])
sketch20.MapMode = "FlatFace"
sketch20.AttachmentOffset = App.Placement(App.Vector(0, 0, 206.35), App.Rotation())
add_polygon(sketch20, [(-10.1, -87.3), (-19.3, -87.3), (-18.1, -85.3), (-10.1, -85.3)])  # lines 0-3
sketch20.addGeometry(Part.LineSegment(App.Vector(-19.3, -87.3, 0), App.Vector(-10.1, -87.3, 0)), True)  # axis
sketch20.addConstraint(Sketcher.Constraint("Horizontal", 0))
sketch20.addConstraint(Sketcher.Constraint("Horizontal", 2))
sketch20.addConstraint(Sketcher.Constraint("Vertical", 3))
sketch20.addConstraint(Sketcher.Constraint("Horizontal", 4))
sketch20.addConstraint(Sketcher.Constraint("Coincident", 4, 1, 0, 2))
sketch20.addConstraint(Sketcher.Constraint("Vertical", 2, 2, 4, 2))
sketch20.addConstraint(Sketcher.Constraint("DistanceX", 2, 1, 2, 2, Q("8 mm")))
sketch20.addConstraint(Sketcher.Constraint("DistanceY", 3, 2, 3, 1, Q("2 mm")))
sketch20.addConstraint(Sketcher.Constraint("Angle", 1, Q("59 deg")))
sketch20.addConstraint(Sketcher.Constraint("DistanceX", 1, 2, -1, 1, Q("18.1 mm")))
sketch20.addConstraint(Sketcher.Constraint("DistanceY", 0, 2, -1, 1, Q("87.35 mm")))
groove5 = body.newObject("PartDesign::Groove", "Groove004")
groove5.Profile = sketch20
groove5.ReferenceAxis = (sketch20, ["Axis0"])
groove5.Angle = 360

# Sketch on YZ plane
sketch21 = body.newObject("Sketcher::SketchObject", "Sketch020")
sketch21.AttachmentSupport = (doc.getObject("YZ_Plane"), [""])
sketch21.MapMode = "FlatFace"
sketch21.AttachmentOffset = App.Placement(App.Vector(0, 0, 206.35), App.Rotation())
add_polygon(sketch21, [(-10.1, -22.4), (-19.3, -22.4), (-18.1, -20.4), (-10.1, -20.4)])  # lines 0-3
sketch21.addGeometry(Part.LineSegment(App.Vector(-19.3, -22.4, 0), App.Vector(-10.1, -22.4, 0)), True)  # axis
sketch21.addConstraint(Sketcher.Constraint("Horizontal", 0))
sketch21.addConstraint(Sketcher.Constraint("Horizontal", 2))
sketch21.addConstraint(Sketcher.Constraint("Vertical", 3))
sketch21.addConstraint(Sketcher.Constraint("Horizontal", 4))
sketch21.addConstraint(Sketcher.Constraint("Coincident", 4, 1, 0, 2))
sketch21.addConstraint(Sketcher.Constraint("Vertical", 2, 2, 4, 2))
sketch21.addConstraint(Sketcher.Constraint("DistanceX", 2, 1, 2, 2, Q("8 mm")))
sketch21.addConstraint(Sketcher.Constraint("DistanceY", 3, 2, 3, 1, Q("2 mm")))
sketch21.addConstraint(Sketcher.Constraint("Angle", 1, Q("59 deg")))
sketch21.addConstraint(Sketcher.Constraint("DistanceX", 1, 2, -1, 1, Q("18.1 mm")))
sketch21.addConstraint(Sketcher.Constraint("DistanceY", 0, 2, -1, 1, Q("22.35 mm")))
groove6 = body.newObject("PartDesign::Groove", "Groove005")
groove6.Profile = sketch21
groove6.ReferenceAxis = (sketch21, ["Axis0"])
groove6.Angle = 360

# Sketch on YZ plane
sketch22 = body.newObject("Sketcher::SketchObject", "Sketch021")
sketch22.AttachmentSupport = (doc.getObject("YZ_Plane"), [""])
sketch22.MapMode = "FlatFace"
sketch22.AttachmentOffset = App.Placement(App.Vector(0, 0, 214.35), App.Rotation())
add_polygon(sketch22, [(-10.1, -22.4), (-19.3, -22.4), (-18.1, -20.4), (-10.1, -20.4)])  # lines 0-3
sketch22.addGeometry(Part.LineSegment(App.Vector(-19.3, -22.4, 0), App.Vector(-10.1, -22.4, 0)), True)  # axis
sketch22.addConstraint(Sketcher.Constraint("Horizontal", 0))
sketch22.addConstraint(Sketcher.Constraint("Horizontal", 2))
sketch22.addConstraint(Sketcher.Constraint("Vertical", 3))
sketch22.addConstraint(Sketcher.Constraint("Horizontal", 4))
sketch22.addConstraint(Sketcher.Constraint("Coincident", 4, 1, 0, 2))
sketch22.addConstraint(Sketcher.Constraint("Vertical", 2, 2, 4, 2))
sketch22.addConstraint(Sketcher.Constraint("DistanceX", 2, 1, 2, 2, Q("8 mm")))
sketch22.addConstraint(Sketcher.Constraint("DistanceY", 3, 2, 3, 1, Q("2 mm")))
sketch22.addConstraint(Sketcher.Constraint("Angle", 1, Q("59 deg")))
sketch22.addConstraint(Sketcher.Constraint("DistanceX", 1, 2, -1, 1, Q("18.1 mm")))
sketch22.addConstraint(Sketcher.Constraint("DistanceY", 0, 2, -1, 1, Q("22.35 mm")))
groove7 = body.newObject("PartDesign::Groove", "Groove006")
groove7.Profile = sketch22
groove7.ReferenceAxis = (sketch22, ["Axis0"])
groove7.Angle = 360

# Sketch on YZ plane
sketch23 = body.newObject("Sketcher::SketchObject", "Sketch022")
sketch23.AttachmentSupport = (doc.getObject("YZ_Plane"), [""])
sketch23.MapMode = "FlatFace"
sketch23.AttachmentOffset = App.Placement(App.Vector(0, 0, 214.35), App.Rotation())
add_polygon(sketch23, [(-19.3, 87.3), (-10.1, 87.3), (-10.1, 85.3), (-18.1, 85.3)])  # lines 0-3
sketch23.addGeometry(Part.LineSegment(App.Vector(-10.1, 87.3, 0), App.Vector(-19.3, 87.3, 0)), True)  # axis
sketch23.addConstraint(Sketcher.Constraint("Horizontal", 0))
sketch23.addConstraint(Sketcher.Constraint("Vertical", 1))
sketch23.addConstraint(Sketcher.Constraint("Horizontal", 2))
sketch23.addConstraint(Sketcher.Constraint("Horizontal", 4))
sketch23.addConstraint(Sketcher.Constraint("Coincident", 4, 1, 0, 2))
sketch23.addConstraint(Sketcher.Constraint("Equal", 0, 4))
sketch23.addConstraint(Sketcher.Constraint("DistanceX", 2, 2, 2, 1, Q("8 mm")))
sketch23.addConstraint(Sketcher.Constraint("DistanceY", 1, 2, 1, 1, Q("2 mm")))
sketch23.addConstraint(Sketcher.Constraint("Angle", 3, Q("121 deg")))
sketch23.addConstraint(Sketcher.Constraint("DistanceX", 0, 2, -1, 1, Q("10.1 mm")))
sketch23.addConstraint(Sketcher.Constraint("DistanceY", -1, 1, 0, 2, Q("87.35 mm")))
groove8 = body.newObject("PartDesign::Groove", "Groove007")
groove8.Profile = sketch23
groove8.ReferenceAxis = (sketch23, ["Axis0"])
groove8.Angle = 360

# Sketch on YZ plane
sketch24 = body.newObject("Sketcher::SketchObject", "Sketch023")
sketch24.AttachmentSupport = (doc.getObject("YZ_Plane"), [""])
sketch24.MapMode = "FlatFace"
sketch24.AttachmentOffset = App.Placement(App.Vector(0, 0, 206.35), App.Rotation())
add_polygon(sketch24, [(-19.3, 87.3), (-10.1, 87.3), (-10.1, 85.3), (-18.1, 85.3)])  # lines 0-3
sketch24.addGeometry(Part.LineSegment(App.Vector(-10.1, 87.3, 0), App.Vector(-19.3, 87.3, 0)), True)  # axis
sketch24.addConstraint(Sketcher.Constraint("Horizontal", 0))
sketch24.addConstraint(Sketcher.Constraint("Vertical", 1))
sketch24.addConstraint(Sketcher.Constraint("Horizontal", 2))
sketch24.addConstraint(Sketcher.Constraint("Horizontal", 4))
sketch24.addConstraint(Sketcher.Constraint("Coincident", 4, 1, 0, 2))
sketch24.addConstraint(Sketcher.Constraint("Equal", 0, 4))
sketch24.addConstraint(Sketcher.Constraint("DistanceX", 2, 2, 2, 1, Q("8 mm")))
sketch24.addConstraint(Sketcher.Constraint("DistanceY", 1, 2, 1, 1, Q("2 mm")))
sketch24.addConstraint(Sketcher.Constraint("Angle", 3, Q("121 deg")))
sketch24.addConstraint(Sketcher.Constraint("DistanceX", 0, 2, -1, 1, Q("10.1 mm")))
sketch24.addConstraint(Sketcher.Constraint("DistanceY", -1, 1, 0, 2, Q("87.35 mm")))
groove9 = body.newObject("PartDesign::Groove", "Groove008")
groove9.Profile = sketch24
groove9.ReferenceAxis = (sketch24, ["Axis0"])
groove9.Angle = 360

# Sketch on YZ plane
sketch25 = body.newObject("Sketcher::SketchObject", "Sketch024")
sketch25.AttachmentSupport = (doc.getObject("YZ_Plane"), [""])
sketch25.MapMode = "FlatFace"
sketch25.AttachmentOffset = App.Placement(App.Vector(0, 0, 206.35), App.Rotation())
add_polygon(sketch25, [(-19.3, 22.4), (-10.1, 22.4), (-10.1, 20.4), (-18.1, 20.4)])  # lines 0-3
sketch25.addGeometry(Part.LineSegment(App.Vector(-10.1, 22.4, 0), App.Vector(-19.3, 22.4, 0)), True)  # axis
sketch25.addConstraint(Sketcher.Constraint("Horizontal", 0))
sketch25.addConstraint(Sketcher.Constraint("Vertical", 1))
sketch25.addConstraint(Sketcher.Constraint("Horizontal", 2))
sketch25.addConstraint(Sketcher.Constraint("Horizontal", 4))
sketch25.addConstraint(Sketcher.Constraint("Coincident", 4, 1, 0, 2))
sketch25.addConstraint(Sketcher.Constraint("Equal", 0, 4))
sketch25.addConstraint(Sketcher.Constraint("DistanceX", 2, 2, 2, 1, Q("8 mm")))
sketch25.addConstraint(Sketcher.Constraint("DistanceY", 1, 2, 1, 1, Q("2 mm")))
sketch25.addConstraint(Sketcher.Constraint("Angle", 3, Q("121 deg")))
sketch25.addConstraint(Sketcher.Constraint("DistanceX", 0, 2, -1, 1, Q("10.1 mm")))
sketch25.addConstraint(Sketcher.Constraint("DistanceY", -1, 1, 0, 2, Q("22.35 mm")))
groove10 = body.newObject("PartDesign::Groove", "Groove009")
groove10.Profile = sketch25
groove10.ReferenceAxis = (sketch25, ["Axis0"])
groove10.Angle = 360

# Sketch on YZ plane
sketch26 = body.newObject("Sketcher::SketchObject", "Sketch025")
sketch26.AttachmentSupport = (doc.getObject("YZ_Plane"), [""])
sketch26.MapMode = "FlatFace"
sketch26.AttachmentOffset = App.Placement(App.Vector(0, 0, 214.35), App.Rotation())
add_polygon(sketch26, [(-19.3, 22.4), (-10.1, 22.4), (-10.1, 20.4), (-18.1, 20.4)])  # lines 0-3
sketch26.addGeometry(Part.LineSegment(App.Vector(-10.1, 22.4, 0), App.Vector(-19.3, 22.4, 0)), True)  # axis
sketch26.addConstraint(Sketcher.Constraint("Horizontal", 0))
sketch26.addConstraint(Sketcher.Constraint("Vertical", 1))
sketch26.addConstraint(Sketcher.Constraint("Horizontal", 2))
sketch26.addConstraint(Sketcher.Constraint("Horizontal", 4))
sketch26.addConstraint(Sketcher.Constraint("Coincident", 4, 1, 0, 2))
sketch26.addConstraint(Sketcher.Constraint("Equal", 0, 4))
sketch26.addConstraint(Sketcher.Constraint("DistanceX", 2, 2, 2, 1, Q("8 mm")))
sketch26.addConstraint(Sketcher.Constraint("DistanceY", 1, 2, 1, 1, Q("2 mm")))
sketch26.addConstraint(Sketcher.Constraint("Angle", 3, Q("121 deg")))
sketch26.addConstraint(Sketcher.Constraint("DistanceX", 0, 2, -1, 1, Q("10.1 mm")))
sketch26.addConstraint(Sketcher.Constraint("DistanceY", -1, 1, 0, 2, Q("22.35 mm")))
groove11 = body.newObject("PartDesign::Groove", "Groove010")
groove11.Profile = sketch26
groove11.ReferenceAxis = (sketch26, ["Axis0"])
groove11.Angle = 360

doc.recompute()
